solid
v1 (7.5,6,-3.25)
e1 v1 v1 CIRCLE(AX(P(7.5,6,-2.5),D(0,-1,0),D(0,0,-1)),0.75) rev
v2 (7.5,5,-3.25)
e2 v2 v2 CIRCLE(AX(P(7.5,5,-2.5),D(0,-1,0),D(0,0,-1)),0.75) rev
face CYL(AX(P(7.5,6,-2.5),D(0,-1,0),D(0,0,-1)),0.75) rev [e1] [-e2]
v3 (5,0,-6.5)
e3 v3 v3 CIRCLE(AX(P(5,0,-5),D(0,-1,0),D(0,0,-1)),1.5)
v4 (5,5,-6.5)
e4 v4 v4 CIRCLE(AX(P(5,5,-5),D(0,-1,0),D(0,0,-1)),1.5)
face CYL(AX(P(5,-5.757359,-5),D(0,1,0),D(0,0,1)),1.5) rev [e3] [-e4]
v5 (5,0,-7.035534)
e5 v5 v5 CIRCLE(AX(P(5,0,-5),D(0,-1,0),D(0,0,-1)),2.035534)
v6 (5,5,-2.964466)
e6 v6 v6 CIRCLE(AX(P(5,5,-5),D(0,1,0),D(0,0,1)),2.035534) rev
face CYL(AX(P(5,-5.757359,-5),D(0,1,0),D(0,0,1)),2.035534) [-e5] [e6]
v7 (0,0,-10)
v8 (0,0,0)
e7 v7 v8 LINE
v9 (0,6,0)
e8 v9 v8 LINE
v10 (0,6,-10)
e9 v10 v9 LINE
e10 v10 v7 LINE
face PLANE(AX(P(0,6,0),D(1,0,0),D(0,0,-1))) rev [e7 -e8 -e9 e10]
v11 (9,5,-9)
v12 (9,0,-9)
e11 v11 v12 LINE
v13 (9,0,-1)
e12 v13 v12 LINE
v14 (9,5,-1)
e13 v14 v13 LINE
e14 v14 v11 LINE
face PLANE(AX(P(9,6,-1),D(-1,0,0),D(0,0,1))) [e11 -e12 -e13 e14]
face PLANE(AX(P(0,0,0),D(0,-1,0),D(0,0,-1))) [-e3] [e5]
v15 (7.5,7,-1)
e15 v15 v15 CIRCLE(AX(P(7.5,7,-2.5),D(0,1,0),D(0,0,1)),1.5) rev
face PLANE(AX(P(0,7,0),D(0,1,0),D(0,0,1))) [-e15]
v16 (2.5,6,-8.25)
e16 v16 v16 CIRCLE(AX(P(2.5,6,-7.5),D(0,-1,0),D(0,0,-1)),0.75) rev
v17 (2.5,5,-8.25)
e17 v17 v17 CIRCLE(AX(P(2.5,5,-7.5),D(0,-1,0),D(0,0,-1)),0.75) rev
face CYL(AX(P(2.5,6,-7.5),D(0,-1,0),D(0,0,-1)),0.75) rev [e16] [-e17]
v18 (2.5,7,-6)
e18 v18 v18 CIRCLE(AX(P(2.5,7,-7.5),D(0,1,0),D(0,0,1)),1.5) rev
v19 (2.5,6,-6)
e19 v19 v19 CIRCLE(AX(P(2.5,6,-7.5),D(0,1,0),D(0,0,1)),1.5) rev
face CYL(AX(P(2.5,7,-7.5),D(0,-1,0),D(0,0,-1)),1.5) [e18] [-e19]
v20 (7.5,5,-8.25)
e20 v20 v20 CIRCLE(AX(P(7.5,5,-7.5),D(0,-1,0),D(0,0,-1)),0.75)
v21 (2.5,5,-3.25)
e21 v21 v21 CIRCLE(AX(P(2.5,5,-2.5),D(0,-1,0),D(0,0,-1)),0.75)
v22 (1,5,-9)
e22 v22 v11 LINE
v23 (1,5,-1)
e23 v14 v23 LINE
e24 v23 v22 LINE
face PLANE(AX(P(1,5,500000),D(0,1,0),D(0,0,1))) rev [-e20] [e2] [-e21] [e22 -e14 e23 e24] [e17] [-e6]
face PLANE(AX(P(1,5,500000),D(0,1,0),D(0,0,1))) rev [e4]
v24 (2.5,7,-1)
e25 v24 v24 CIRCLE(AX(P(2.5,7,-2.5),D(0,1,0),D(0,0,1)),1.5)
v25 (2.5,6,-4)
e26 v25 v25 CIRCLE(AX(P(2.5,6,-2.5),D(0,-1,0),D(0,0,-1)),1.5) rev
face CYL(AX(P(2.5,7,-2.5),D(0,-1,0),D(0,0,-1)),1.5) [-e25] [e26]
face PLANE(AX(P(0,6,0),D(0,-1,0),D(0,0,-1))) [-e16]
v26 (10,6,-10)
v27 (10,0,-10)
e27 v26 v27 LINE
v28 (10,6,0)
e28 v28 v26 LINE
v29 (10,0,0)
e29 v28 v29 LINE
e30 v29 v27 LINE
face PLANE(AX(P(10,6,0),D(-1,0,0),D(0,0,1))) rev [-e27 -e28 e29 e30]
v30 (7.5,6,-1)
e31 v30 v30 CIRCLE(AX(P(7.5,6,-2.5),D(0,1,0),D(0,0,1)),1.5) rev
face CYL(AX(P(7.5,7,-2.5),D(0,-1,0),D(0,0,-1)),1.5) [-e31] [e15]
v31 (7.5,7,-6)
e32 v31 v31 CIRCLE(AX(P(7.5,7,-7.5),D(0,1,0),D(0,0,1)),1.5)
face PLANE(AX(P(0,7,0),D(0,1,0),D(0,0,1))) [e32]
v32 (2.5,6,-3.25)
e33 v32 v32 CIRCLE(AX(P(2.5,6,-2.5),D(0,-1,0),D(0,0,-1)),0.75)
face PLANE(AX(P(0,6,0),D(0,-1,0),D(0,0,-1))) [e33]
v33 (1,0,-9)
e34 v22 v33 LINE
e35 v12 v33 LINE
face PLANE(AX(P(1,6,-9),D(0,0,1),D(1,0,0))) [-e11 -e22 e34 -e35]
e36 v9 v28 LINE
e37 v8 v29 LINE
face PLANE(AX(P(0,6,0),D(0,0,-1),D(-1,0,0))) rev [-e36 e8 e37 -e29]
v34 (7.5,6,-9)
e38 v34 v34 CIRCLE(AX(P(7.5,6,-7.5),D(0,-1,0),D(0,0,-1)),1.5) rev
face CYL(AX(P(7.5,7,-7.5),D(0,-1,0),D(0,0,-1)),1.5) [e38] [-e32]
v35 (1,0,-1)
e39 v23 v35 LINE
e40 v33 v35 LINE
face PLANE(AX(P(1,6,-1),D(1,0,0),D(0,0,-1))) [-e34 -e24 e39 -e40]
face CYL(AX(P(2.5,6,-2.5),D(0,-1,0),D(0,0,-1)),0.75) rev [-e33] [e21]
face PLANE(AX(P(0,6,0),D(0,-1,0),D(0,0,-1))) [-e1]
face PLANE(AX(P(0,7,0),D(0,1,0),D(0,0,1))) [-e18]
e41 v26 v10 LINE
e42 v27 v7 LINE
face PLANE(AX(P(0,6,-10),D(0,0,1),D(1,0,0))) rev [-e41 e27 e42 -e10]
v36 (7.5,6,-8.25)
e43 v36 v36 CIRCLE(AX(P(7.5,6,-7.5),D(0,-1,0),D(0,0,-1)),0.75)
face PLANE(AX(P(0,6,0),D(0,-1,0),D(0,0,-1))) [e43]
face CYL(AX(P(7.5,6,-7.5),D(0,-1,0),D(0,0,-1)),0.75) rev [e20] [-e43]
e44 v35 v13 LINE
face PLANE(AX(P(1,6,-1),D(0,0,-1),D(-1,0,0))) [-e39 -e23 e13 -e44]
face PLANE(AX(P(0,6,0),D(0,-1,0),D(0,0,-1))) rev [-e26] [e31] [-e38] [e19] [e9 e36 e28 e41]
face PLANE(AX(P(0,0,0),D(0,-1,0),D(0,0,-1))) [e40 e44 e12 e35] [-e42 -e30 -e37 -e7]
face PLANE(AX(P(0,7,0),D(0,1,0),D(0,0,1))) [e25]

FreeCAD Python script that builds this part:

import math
import FreeCAD as App
import Part
import Sketcher

V = App.Vector


def add_polygon(sketch, points):
    """Adds a closed chain of lines whose ends are joined by coincident constraints."""
    first, n = sketch.GeometryCount, len(points)
    for a, b in zip(points, points[1:] + points[:1]):
        sketch.addGeometry(Part.LineSegment(App.Vector(*a, 0), App.Vector(*b, 0)), False)
    for i in range(n):
        sketch.addConstraint(Sketcher.Constraint("Coincident", first + i, 2, first + (i + 1) % n, 1))

doc = App.newDocument("Part")
body = doc.addObject("PartDesign::Body", "Body")

sketch1 = body.newObject("Sketcher::SketchObject", "Sketch")
sketch1.AttachmentSupport = (doc.getObject("XZ_Plane"), [""])
sketch1.MapMode = "FlatFace"
add_polygon(sketch1, [(0, -10), (0, 0), (10, 0), (10, -10)])
add_polygon(sketch1, [(9, -1), (1, -1), (1, -9), (9, -9)])
sketch1.addConstraint([
    Sketcher.Constraint("Vertical", 0),
    Sketcher.Constraint("Horizontal", 1),
    Sketcher.Constraint("Vertical", 2),
    Sketcher.Constraint("Horizontal", 3),
    Sketcher.Constraint("Horizontal", 4),
    Sketcher.Constraint("Vertical", 5),
    Sketcher.Constraint("Horizontal", 6),
    Sketcher.Constraint("Vertical", 7),
    Sketcher.Constraint("Coincident", 0, 2, -1, 1),
    Sketcher.Constraint("Equal", 3, 0),
    Sketcher.Constraint("Equal", 6, 5),
    Sketcher.Constraint("DistanceX", 1, 1, 1, 2, 10.0),
    Sketcher.Constraint("DistanceX", 4, 2, 4, 1, 8.0),
    Sketcher.Constraint("DistanceX", -1, 1, 4, 2, 1.0),
    Sketcher.Constraint("DistanceY", 4, 2, -1, 1, 1.0),
])
pad1 = body.newObject("PartDesign::Pad", "Pad")
pad1.Profile = sketch1
pad1.Length = 6
pad1.Reversed = True

sketch2 = body.newObject("Sketcher::SketchObject", "Sketch001")
sketch2.AttachmentSupport = (doc.getObject("XY_Plane"), [""])
sketch2.MapMode = "FlatFace"
sketch2.AttachmentOffset = App.Placement(V(0, 0, -9), App.Rotation())
add_polygon(sketch2, [(1, 6), (1, 5), (9, 5), (9, 6)])
sketch2.addConstraint([
    Sketcher.Constraint("Vertical", 0),
    Sketcher.Constraint("Horizontal", 1),
    Sketcher.Constraint("Vertical", 2),
    Sketcher.Constraint("Horizontal", 3),
    Sketcher.Constraint("DistanceX", 1, 1, 1, 2, 8.0),
    Sketcher.Constraint("DistanceY", 0, 2, 0, 1, 1.0),
    Sketcher.Constraint("DistanceX", -1, 1, 0, 2, 1.0),
    Sketcher.Constraint("DistanceY", -1, 1, 0, 2, 5.0),
])
pad2 = body.newObject("PartDesign::Pad", "Pad001")
pad2.Profile = sketch2
pad2.Type = "UpToFirst"

sketch3 = body.newObject("Sketcher::SketchObject", "Sketch002")
sketch3.AttachmentSupport = (doc.getObject("XZ_Plane"), [""])
sketch3.MapMode = "FlatFace"
sketch3.AttachmentOffset = App.Placement(V(0, 0, -6), App.Rotation())
sketch3.addGeometry([
    Part.Circle(V(2.5, -2.5, 0), V(0, 0, 1), 1.5),
    Part.Circle(V(7.5, -2.5, 0), V(0, 0, 1), 1.5),
    Part.Circle(V(7.5, -7.5, 0), V(0, 0, 1), 1.5),
    Part.Circle(V(2.5, -7.5, 0), V(0, 0, 1), 1.5),
], False)
sketch3.addConstraint([
    Sketcher.Constraint("Equal", 0, 1),
    Sketcher.Constraint("Equal", 1, 2),
    Sketcher.Constraint("Equal", 2, 3),
    Sketcher.Constraint("Horizontal", 0, 3, 1, 3),
    Sketcher.Constraint("Horizontal", 2, 3, 3, 3),
    Sketcher.Constraint("Vertical", 1, 3, 2, 3),
    Sketcher.Constraint("Vertical", 0, 3, 3, 3),
    Sketcher.Constraint("Diameter", 0, 3.0),
    Sketcher.Constraint("DistanceX", 0, 3, 1, 3, 5.0),
    Sketcher.Constraint("DistanceY", 2, 3, 1, 3, 5.0),
    Sketcher.Constraint("DistanceX", -1, 1, 0, 3, 2.5),
    Sketcher.Constraint("DistanceY", 0, 3, -1, 1, 2.5),
])
pad3 = body.newObject("PartDesign::Pad", "Pad002")
pad3.Profile = sketch3
pad3.Length = 1
pad3.Reversed = True

sketch4 = body.newObject("Sketcher::SketchObject", "Sketch003")
sketch4.AttachmentSupport = (doc.getObject("XZ_Plane"), [""])
sketch4.MapMode = "FlatFace"
sketch4.AttachmentOffset = App.Placement(V(0, 0, -5), App.Rotation())
sketch4.addGeometry([
    Part.ArcOfCircle(Part.Circle(V(5, -5, 0), V(0, 0, 1), 2.035534), math.radians(-180), math.radians(-90)),
    Part.ArcOfCircle(Part.Circle(V(5, -5, 0), V(0, 0, 1), 2.035534), math.radians(-90), math.radians(-45)),
    Part.ArcOfCircle(Part.Circle(V(5, -5, 0), V(0, 0, 1), 2.035534), math.radians(-44.999999), math.radians(0)),
    Part.ArcOfCircle(Part.Circle(V(5, -5, 0), V(0, 0, 1), 2.035534), math.radians(0), math.radians(90)),
    Part.ArcOfCircle(Part.Circle(V(5, -5, 0), V(0, 0, 1), 2.035534), math.radians(90), math.radians(180)),
    Part.ArcOfCircle(Part.Circle(V(5, -5, 0), V(0, 0, 1), 1.5), math.radians(180), math.radians(270)),
    Part.ArcOfCircle(Part.Circle(V(5, -5, 0), V(0, 0, 1), 1.5), math.radians(90), math.radians(180)),
    Part.ArcOfCircle(Part.Circle(V(5, -5, 0), V(0, 0, 1), 1.5), math.radians(0), math.radians(90)),
    Part.ArcOfCircle(Part.Circle(V(5, -5, 0), V(0, 0, 1), 1.5), math.radians(-90), math.radians(0)),
], False)
sketch4.addConstraint([
    Sketcher.Constraint("Tangent", 0, 2, 1, 1),
    Sketcher.Constraint("Tangent", 1, 2, 2, 1),
    Sketcher.Constraint("Tangent", 2, 2, 3, 1),
    Sketcher.Constraint("Tangent", 3, 2, 4, 1),
    Sketcher.Constraint("Tangent", 4, 2, 0, 1),
    Sketcher.Constraint("Tangent", 5, 1, 6, 2),
    Sketcher.Constraint("Tangent", 6, 1, 7, 2),
    Sketcher.Constraint("Tangent", 7, 1, 8, 2),
    Sketcher.Constraint("Tangent", 8, 1, 5, 2),
    Sketcher.Constraint("Coincident", 2, 3, 0, 3),
    Sketcher.Constraint("Coincident", 5, 3, 0, 3),
    Sketcher.Constraint("Equal", 5, 6),
    Sketcher.Constraint("Horizontal", 8, 3, 2, 2),
    Sketcher.Constraint("Horizontal", 2, 2, 4, 2),
    Sketcher.Constraint("Horizontal", 4, 2, 5, 1),
    Sketcher.Constraint("Horizontal", 5, 1, 7, 1),
    Sketcher.Constraint("Vertical", 8, 3, 0, 2),
    Sketcher.Constraint("Vertical", 0, 2, 3, 2),
    Sketcher.Constraint("Vertical", 3, 2, 6, 1),
    Sketcher.Constraint("Vertical", 6, 1, 8, 1),
    Sketcher.Constraint("Radius", 5, 1.5),
    Sketcher.Constraint("DistanceX", -1, 1, 0, 3, 5.0),
    Sketcher.Constraint("DistanceY", 0, 3, -1, 1, 5.0),
    Sketcher.Constraint("Radius", 0, 2.035534),
    Sketcher.Constraint("DistanceX", -1, 1, 1, 2, 6.43934),
])
pad4 = body.newObject("PartDesign::Pad", "Pad003")
pad4.Profile = sketch4
pad4.Length = 5

sketch5 = body.newObject("Sketcher::SketchObject", "Sketch004")
sketch5.AttachmentSupport = (doc.getObject("XZ_Plane"), [""])
sketch5.MapMode = "FlatFace"
sketch5.AttachmentOffset = App.Placement(V(0, 0, -5), App.Rotation())
sketch5.addGeometry([
    Part.ArcOfCircle(Part.Circle(V(7.5, -7.5, 0), V(0, 0, 1), 0.75), math.radians(90), math.radians(180)),
    Part.ArcOfCircle(Part.Circle(V(7.5, -7.5, 0), V(0, 0, 1), 0.75), math.radians(180), math.radians(450)),
    Part.Circle(V(2.5, -7.5, 0), V(0, 0, 1), 0.75),
    Part.Circle(V(2.5, -2.5, 0), V(0, 0, 1), 0.75),
    Part.Circle(V(7.5, -2.5, 0), V(0, 0, 1), 0.75),
], False)
sketch5.addConstraint([
    Sketcher.Constraint("Tangent", 0, 1, 1, 2),
    Sketcher.Constraint("Coincident", 1, 1, 0, 2),
    Sketcher.Constraint("Equal", 1, 2),
    Sketcher.Constraint("Equal", 2, 3),
    Sketcher.Constraint("Equal", 3, 4),
    Sketcher.Constraint("Horizontal", 1, 3, 2, 3),
    Sketcher.Constraint("Horizontal", 3, 3, 4, 3),
    Sketcher.Constraint("Horizontal", 2, 3, 1, 1),
    Sketcher.Constraint("Vertical", 2, 3, 3, 3),
    Sketcher.Constraint("Vertical", 1, 3, 4, 3),
    Sketcher.Constraint("Vertical", 4, 3, 0, 1),
    Sketcher.Constraint("Diameter", 2, 1.5),
    Sketcher.Constraint("DistanceX", 2, 3, 0, 3, 5.0),
    Sketcher.Constraint("DistanceY", 2, 3, 3, 3, 5.0),
    Sketcher.Constraint("DistanceX", -1, 1, 0, 3, 7.5),
    Sketcher.Constraint("DistanceY", 0, 3, -1, 1, 7.5),
])
pocket1 = body.newObject("PartDesign::Pocket", "Pocket")
pocket1.Profile = sketch5
pocket1.Length = 1

doc.recompute()
